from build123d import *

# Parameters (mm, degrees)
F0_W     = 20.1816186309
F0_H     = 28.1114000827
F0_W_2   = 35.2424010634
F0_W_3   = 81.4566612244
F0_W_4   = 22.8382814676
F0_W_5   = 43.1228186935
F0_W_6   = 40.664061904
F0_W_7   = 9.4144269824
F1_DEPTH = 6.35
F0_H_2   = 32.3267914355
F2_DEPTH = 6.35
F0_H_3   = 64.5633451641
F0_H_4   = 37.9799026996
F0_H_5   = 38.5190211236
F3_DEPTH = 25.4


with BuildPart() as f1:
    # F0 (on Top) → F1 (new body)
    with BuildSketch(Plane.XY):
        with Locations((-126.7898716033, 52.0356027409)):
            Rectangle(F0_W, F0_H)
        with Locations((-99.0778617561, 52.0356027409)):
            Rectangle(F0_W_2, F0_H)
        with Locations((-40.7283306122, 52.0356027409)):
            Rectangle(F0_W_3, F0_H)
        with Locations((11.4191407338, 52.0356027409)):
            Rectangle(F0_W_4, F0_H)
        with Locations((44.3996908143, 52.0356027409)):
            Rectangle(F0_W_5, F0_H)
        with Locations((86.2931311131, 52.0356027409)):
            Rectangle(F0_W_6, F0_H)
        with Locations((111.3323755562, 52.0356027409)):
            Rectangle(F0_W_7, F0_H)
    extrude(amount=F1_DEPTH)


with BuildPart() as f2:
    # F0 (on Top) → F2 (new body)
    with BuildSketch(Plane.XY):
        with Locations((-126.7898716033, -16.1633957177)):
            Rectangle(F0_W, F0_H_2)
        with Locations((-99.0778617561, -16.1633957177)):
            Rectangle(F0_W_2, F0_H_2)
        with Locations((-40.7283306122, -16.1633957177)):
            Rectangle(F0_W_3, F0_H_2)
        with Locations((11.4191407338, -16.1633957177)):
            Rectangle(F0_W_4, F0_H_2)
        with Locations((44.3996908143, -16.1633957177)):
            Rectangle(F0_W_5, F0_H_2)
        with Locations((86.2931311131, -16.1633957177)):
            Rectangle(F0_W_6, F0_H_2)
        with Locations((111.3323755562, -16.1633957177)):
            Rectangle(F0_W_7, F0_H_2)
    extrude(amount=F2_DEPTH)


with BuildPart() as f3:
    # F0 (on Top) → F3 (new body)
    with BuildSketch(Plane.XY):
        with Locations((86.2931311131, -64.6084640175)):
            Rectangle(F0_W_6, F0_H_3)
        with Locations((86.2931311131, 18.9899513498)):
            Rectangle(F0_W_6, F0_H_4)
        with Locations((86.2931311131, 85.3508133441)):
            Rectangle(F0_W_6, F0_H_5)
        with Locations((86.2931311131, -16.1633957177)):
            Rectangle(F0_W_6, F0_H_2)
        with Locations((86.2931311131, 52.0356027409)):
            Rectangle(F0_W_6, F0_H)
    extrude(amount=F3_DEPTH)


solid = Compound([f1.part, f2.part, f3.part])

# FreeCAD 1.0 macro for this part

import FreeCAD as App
import Part
import Sketcher

V = App.Vector
Q = App.Units.Quantity

doc = App.newDocument("Part")
body = doc.addObject("PartDesign::Body", "Body")

# Sketch on XY plane
sketch1 = body.newObject("Sketcher::SketchObject", "Sketch")
sketch1.AttachmentSupport = (doc.getObject("XY_Plane"), [""])
sketch1.MapMode = "FlatFace"
sketch1.addGeometry([
    Part.LineSegment(V(-137, 66, 0), V(-137, 38, 0)),
    Part.LineSegment(V(-137, 38, 0), V(116, 38, 0)),
    Part.LineSegment(V(116, 38, 0), V(116, 66, 0)),
    Part.LineSegment(V(116, 66, 0), V(-137, 66, 0)),
], False)
sketch1.addConstraint([
    Sketcher.Constraint("Coincident", 0, 2, 1, 1),
    Sketcher.Constraint("Coincident", 1, 2, 2, 1),
    Sketcher.Constraint("Coincident", 2, 2, 3, 1),
    Sketcher.Constraint("Coincident", 3, 2, 0, 1),
    Sketcher.Constraint("Vertical", 0),
    Sketcher.Constraint("Horizontal", 1),
    Sketcher.Constraint("Vertical", 2),
    Sketcher.Constraint("Horizontal", 3),
    Sketcher.Constraint("DistanceY", 0, 2, 0, 1, 28.1114),
    Sketcher.Constraint("DistanceX", 1, 1, 1, 2, 252.92027),
    Sketcher.Constraint("DistanceX", 0, 2, -1, 1, 136.880681),
    Sketcher.Constraint("DistanceY", -1, 1, 0, 2, 37.979903),
])
pad1 = body.newObject("PartDesign::Pad", "Pad")
pad1.Profile = sketch1
pad1.Length = Q("0.25 in")
body2 = doc.addObject("PartDesign::Body", "Body001")

# Sketch on XY plane
sketch2 = body2.newObject("Sketcher::SketchObject", "Sketch001")
sketch2.AttachmentSupport = (doc.getObject("XY_Plane001"), [""])
sketch2.MapMode = "FlatFace"
sketch2.addGeometry([
    Part.LineSegment(V(-137, 0, 0), V(-137, -32, 0)),
    Part.LineSegment(V(-137, -32, 0), V(116, -32, 0)),
    Part.LineSegment(V(116, -32, 0), V(116, 0, 0)),
    Part.LineSegment(V(116, 0, 0), V(-137, 0, 0)),
], False)
sketch2.addConstraint([
    Sketcher.Constraint("Coincident", 0, 2, 1, 1),
    Sketcher.Constraint("Coincident", 1, 2, 2, 1),
    Sketcher.Constraint("Coincident", 2, 2, 3, 1),
    Sketcher.Constraint("Coincident", 3, 2, 0, 1),
    Sketcher.Constraint("Vertical", 0),
    Sketcher.Constraint("Horizontal", 1),
    Sketcher.Constraint("Vertical", 2),
    Sketcher.Constraint("Horizontal", 3),
    Sketcher.Constraint("PointOnObject", 2, 2, -1),
    Sketcher.Constraint("DistanceX", 1, 1, 1, 2, 252.92027),
    Sketcher.Constraint("DistanceY", 0, 2, 0, 1, 32.326791),
    Sketcher.Constraint("DistanceX", 0, 2, -1, 1, 136.880681),
])
pad2 = body2.newObject("PartDesign::Pad", "Pad001")
pad2.Profile = sketch2
pad2.Length = Q("0.25 in")
body3 = doc.addObject("PartDesign::Body", "Body002")

# Sketch on XY plane
sketch3 = body3.newObject("Sketcher::SketchObject", "Sketch002")
sketch3.AttachmentSupport = (doc.getObject("XY_Plane002"), [""])
sketch3.MapMode = "FlatFace"
sketch3.addGeometry([
    Part.LineSegment(V(66, -97, 0), V(107, -97, 0)),
    Part.LineSegment(V(107, -97, 0), V(107, 105, 0)),
    Part.LineSegment(V(107, 105, 0), V(66, 105, 0)),
    Part.LineSegment(V(66, 105, 0), V(66, -97, 0)),
], False)
sketch3.addConstraint([
    Sketcher.Constraint("Coincident", 0, 2, 1, 1),
    Sketcher.Constraint("Coincident", 1, 2, 2, 1),
    Sketcher.Constraint("Coincident", 2, 2, 3, 1),
    Sketcher.Constraint("Coincident", 3, 2, 0, 1),
    Sketcher.Constraint("Horizontal", 0),
    Sketcher.Constraint("Vertical", 1),
    Sketcher.Constraint("Horizontal", 2),
    Sketcher.Constraint("Vertical", 3),
    Sketcher.Constraint("DistanceX", 0, 1, 0, 2, 40.664062),
    Sketcher.Constraint("DistanceY", 1, 1, 1, 2, 201.500461),
    Sketcher.Constraint("DistanceX", -1, 1, 2, 2, 65.9611),
    Sketcher.Constraint("DistanceY", 0, 2, -1, 1, 96.890137),
])
pad3 = body3.newObject("PartDesign::Pad", "Pad002")
pad3.Profile = sketch3
pad3.Length = Q("1 in")

doc.recompute()
